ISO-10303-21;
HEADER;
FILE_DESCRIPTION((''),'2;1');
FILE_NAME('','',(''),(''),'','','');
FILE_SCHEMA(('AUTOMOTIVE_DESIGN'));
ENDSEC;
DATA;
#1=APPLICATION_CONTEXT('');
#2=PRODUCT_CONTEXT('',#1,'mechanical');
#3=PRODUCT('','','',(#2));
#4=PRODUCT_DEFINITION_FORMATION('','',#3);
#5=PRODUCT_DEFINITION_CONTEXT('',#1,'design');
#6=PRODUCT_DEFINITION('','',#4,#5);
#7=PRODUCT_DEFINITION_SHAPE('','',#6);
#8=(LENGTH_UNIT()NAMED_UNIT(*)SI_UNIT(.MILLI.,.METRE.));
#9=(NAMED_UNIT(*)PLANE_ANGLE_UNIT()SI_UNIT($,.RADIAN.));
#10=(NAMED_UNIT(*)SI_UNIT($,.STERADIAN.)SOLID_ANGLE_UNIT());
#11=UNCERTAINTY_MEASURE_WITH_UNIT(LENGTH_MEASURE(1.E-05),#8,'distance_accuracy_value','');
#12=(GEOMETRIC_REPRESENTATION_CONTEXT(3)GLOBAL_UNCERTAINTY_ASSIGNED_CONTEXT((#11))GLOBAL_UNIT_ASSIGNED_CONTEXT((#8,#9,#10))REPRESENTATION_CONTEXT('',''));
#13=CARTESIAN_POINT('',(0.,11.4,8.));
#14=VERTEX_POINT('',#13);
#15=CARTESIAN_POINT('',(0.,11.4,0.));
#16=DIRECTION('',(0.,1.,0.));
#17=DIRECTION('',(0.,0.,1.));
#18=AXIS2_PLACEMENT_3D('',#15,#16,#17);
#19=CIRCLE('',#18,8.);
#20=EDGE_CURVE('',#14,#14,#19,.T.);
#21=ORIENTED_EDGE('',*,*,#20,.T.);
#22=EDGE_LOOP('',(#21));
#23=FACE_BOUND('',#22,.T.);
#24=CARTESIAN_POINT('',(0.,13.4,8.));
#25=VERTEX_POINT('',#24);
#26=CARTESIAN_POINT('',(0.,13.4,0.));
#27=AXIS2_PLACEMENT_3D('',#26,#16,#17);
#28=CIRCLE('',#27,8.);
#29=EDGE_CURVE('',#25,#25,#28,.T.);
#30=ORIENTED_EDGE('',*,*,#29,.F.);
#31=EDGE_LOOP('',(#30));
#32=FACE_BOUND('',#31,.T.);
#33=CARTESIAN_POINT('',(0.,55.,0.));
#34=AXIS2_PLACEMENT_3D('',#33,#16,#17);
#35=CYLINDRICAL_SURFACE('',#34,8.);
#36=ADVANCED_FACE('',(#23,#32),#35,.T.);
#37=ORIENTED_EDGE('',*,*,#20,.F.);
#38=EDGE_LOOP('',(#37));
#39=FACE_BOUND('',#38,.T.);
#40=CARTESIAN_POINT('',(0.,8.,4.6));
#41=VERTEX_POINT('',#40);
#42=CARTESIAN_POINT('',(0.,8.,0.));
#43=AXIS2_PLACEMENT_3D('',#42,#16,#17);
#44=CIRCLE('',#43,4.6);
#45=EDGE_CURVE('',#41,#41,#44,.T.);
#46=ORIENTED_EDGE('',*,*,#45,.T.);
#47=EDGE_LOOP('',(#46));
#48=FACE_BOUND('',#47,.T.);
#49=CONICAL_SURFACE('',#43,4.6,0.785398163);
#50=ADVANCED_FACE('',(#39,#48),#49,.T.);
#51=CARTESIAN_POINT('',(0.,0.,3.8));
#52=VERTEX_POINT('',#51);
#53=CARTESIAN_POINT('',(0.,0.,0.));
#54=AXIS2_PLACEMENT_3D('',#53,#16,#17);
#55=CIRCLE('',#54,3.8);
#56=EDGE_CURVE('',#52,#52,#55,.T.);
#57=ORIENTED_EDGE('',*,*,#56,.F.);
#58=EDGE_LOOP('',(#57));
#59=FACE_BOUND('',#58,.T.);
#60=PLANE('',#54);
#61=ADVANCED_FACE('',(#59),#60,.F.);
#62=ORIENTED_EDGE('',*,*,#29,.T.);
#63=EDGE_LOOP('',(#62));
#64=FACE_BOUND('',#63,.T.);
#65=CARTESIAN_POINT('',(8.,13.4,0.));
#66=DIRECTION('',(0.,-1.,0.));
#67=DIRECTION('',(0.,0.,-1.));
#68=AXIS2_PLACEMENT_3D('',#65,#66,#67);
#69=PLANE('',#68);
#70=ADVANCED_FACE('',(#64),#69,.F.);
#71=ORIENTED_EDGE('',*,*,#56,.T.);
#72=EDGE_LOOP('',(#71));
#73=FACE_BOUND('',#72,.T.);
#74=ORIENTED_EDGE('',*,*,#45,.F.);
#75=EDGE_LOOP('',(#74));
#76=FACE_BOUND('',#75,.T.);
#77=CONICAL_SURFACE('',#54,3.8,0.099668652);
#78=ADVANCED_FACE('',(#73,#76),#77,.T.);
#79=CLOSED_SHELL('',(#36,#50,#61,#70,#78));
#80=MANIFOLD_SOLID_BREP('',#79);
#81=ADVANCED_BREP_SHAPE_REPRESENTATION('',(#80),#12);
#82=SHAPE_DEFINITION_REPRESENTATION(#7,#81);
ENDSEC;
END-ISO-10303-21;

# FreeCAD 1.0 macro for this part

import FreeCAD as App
import Part
import Sketcher
Q = App.Units.Quantity

doc = App.newDocument("Part")
body = doc.addObject("PartDesign::Body", "Body")

sketch1 = doc.addObject("Sketcher::SketchObject", "Sketch")
body.addObject(sketch1)
sketch1.AttachmentSupport = (doc.XY_Plane, [""])
sketch1.MapMode = "FlatFace"
sketch1.addGeometry(Part.LineSegment(App.Vector(0, 0, 0), App.Vector(3.8, 0, 0)), False)
sketch1.addGeometry(Part.LineSegment(App.Vector(3.8, 0, 0), App.Vector(4.6, 8, 0)), False)
sketch1.addGeometry(Part.LineSegment(App.Vector(4.6, 8, 0), App.Vector(8, 11.4, 0)), False)
sketch1.addGeometry(Part.LineSegment(App.Vector(8, 11.4, 0), App.Vector(8, 13.4, 0)), False)
sketch1.addGeometry(Part.LineSegment(App.Vector(8, 13.4, 0), App.Vector(0, 13.4, 0)), False)
sketch1.addGeometry(Part.LineSegment(App.Vector(0, 13.4, 0), App.Vector(0, 0, 0)), False)
sketch1.addConstraint(Sketcher.Constraint("Coincident", 0, 2, 1, 1))
sketch1.addConstraint(Sketcher.Constraint("Coincident", 1, 2, 2, 1))
sketch1.addConstraint(Sketcher.Constraint("Coincident", 2, 2, 3, 1))
sketch1.addConstraint(Sketcher.Constraint("Coincident", 3, 2, 4, 1))
sketch1.addConstraint(Sketcher.Constraint("Coincident", 4, 2, 5, 1))
sketch1.addConstraint(Sketcher.Constraint("Coincident", 5, 2, 0, 1))
sketch1.addConstraint(Sketcher.Constraint("Horizontal", 0))
sketch1.addConstraint(Sketcher.Constraint("Vertical", 3))
sketch1.addConstraint(Sketcher.Constraint("Horizontal", 4))
sketch1.addConstraint(Sketcher.Constraint("Vertical", 5))
sketch1.addConstraint(Sketcher.Constraint("Coincident", 5, 2, -1, 1))
sketch1.addConstraint(Sketcher.Constraint("DistanceX", 4, 2, 4, 1, Q("8 mm")))
sketch1.addConstraint(Sketcher.Constraint("DistanceY", 3, 1, 3, 2, Q("2 mm")))
sketch1.addConstraint(Sketcher.Constraint("Angle", 2, Q("45 deg")))
sketch1.addConstraint(Sketcher.Constraint("DistanceX", 0, 1, 0, 2, Q("3.8 mm")))
sketch1.addConstraint(Sketcher.Constraint("DistanceY", 5, 2, 5, 1, Q("13.4 mm")))
sketch1.addConstraint(Sketcher.Constraint("DistanceY", -1, 1, 1, 2, Q("8 mm")))
revolution = doc.addObject("PartDesign::Revolution", "Revolution")
body.addObject(revolution)
revolution.Profile = sketch1
revolution.ReferenceAxis = (sketch1, ["V_Axis"])
revolution.Angle = 360

doc.recompute()
